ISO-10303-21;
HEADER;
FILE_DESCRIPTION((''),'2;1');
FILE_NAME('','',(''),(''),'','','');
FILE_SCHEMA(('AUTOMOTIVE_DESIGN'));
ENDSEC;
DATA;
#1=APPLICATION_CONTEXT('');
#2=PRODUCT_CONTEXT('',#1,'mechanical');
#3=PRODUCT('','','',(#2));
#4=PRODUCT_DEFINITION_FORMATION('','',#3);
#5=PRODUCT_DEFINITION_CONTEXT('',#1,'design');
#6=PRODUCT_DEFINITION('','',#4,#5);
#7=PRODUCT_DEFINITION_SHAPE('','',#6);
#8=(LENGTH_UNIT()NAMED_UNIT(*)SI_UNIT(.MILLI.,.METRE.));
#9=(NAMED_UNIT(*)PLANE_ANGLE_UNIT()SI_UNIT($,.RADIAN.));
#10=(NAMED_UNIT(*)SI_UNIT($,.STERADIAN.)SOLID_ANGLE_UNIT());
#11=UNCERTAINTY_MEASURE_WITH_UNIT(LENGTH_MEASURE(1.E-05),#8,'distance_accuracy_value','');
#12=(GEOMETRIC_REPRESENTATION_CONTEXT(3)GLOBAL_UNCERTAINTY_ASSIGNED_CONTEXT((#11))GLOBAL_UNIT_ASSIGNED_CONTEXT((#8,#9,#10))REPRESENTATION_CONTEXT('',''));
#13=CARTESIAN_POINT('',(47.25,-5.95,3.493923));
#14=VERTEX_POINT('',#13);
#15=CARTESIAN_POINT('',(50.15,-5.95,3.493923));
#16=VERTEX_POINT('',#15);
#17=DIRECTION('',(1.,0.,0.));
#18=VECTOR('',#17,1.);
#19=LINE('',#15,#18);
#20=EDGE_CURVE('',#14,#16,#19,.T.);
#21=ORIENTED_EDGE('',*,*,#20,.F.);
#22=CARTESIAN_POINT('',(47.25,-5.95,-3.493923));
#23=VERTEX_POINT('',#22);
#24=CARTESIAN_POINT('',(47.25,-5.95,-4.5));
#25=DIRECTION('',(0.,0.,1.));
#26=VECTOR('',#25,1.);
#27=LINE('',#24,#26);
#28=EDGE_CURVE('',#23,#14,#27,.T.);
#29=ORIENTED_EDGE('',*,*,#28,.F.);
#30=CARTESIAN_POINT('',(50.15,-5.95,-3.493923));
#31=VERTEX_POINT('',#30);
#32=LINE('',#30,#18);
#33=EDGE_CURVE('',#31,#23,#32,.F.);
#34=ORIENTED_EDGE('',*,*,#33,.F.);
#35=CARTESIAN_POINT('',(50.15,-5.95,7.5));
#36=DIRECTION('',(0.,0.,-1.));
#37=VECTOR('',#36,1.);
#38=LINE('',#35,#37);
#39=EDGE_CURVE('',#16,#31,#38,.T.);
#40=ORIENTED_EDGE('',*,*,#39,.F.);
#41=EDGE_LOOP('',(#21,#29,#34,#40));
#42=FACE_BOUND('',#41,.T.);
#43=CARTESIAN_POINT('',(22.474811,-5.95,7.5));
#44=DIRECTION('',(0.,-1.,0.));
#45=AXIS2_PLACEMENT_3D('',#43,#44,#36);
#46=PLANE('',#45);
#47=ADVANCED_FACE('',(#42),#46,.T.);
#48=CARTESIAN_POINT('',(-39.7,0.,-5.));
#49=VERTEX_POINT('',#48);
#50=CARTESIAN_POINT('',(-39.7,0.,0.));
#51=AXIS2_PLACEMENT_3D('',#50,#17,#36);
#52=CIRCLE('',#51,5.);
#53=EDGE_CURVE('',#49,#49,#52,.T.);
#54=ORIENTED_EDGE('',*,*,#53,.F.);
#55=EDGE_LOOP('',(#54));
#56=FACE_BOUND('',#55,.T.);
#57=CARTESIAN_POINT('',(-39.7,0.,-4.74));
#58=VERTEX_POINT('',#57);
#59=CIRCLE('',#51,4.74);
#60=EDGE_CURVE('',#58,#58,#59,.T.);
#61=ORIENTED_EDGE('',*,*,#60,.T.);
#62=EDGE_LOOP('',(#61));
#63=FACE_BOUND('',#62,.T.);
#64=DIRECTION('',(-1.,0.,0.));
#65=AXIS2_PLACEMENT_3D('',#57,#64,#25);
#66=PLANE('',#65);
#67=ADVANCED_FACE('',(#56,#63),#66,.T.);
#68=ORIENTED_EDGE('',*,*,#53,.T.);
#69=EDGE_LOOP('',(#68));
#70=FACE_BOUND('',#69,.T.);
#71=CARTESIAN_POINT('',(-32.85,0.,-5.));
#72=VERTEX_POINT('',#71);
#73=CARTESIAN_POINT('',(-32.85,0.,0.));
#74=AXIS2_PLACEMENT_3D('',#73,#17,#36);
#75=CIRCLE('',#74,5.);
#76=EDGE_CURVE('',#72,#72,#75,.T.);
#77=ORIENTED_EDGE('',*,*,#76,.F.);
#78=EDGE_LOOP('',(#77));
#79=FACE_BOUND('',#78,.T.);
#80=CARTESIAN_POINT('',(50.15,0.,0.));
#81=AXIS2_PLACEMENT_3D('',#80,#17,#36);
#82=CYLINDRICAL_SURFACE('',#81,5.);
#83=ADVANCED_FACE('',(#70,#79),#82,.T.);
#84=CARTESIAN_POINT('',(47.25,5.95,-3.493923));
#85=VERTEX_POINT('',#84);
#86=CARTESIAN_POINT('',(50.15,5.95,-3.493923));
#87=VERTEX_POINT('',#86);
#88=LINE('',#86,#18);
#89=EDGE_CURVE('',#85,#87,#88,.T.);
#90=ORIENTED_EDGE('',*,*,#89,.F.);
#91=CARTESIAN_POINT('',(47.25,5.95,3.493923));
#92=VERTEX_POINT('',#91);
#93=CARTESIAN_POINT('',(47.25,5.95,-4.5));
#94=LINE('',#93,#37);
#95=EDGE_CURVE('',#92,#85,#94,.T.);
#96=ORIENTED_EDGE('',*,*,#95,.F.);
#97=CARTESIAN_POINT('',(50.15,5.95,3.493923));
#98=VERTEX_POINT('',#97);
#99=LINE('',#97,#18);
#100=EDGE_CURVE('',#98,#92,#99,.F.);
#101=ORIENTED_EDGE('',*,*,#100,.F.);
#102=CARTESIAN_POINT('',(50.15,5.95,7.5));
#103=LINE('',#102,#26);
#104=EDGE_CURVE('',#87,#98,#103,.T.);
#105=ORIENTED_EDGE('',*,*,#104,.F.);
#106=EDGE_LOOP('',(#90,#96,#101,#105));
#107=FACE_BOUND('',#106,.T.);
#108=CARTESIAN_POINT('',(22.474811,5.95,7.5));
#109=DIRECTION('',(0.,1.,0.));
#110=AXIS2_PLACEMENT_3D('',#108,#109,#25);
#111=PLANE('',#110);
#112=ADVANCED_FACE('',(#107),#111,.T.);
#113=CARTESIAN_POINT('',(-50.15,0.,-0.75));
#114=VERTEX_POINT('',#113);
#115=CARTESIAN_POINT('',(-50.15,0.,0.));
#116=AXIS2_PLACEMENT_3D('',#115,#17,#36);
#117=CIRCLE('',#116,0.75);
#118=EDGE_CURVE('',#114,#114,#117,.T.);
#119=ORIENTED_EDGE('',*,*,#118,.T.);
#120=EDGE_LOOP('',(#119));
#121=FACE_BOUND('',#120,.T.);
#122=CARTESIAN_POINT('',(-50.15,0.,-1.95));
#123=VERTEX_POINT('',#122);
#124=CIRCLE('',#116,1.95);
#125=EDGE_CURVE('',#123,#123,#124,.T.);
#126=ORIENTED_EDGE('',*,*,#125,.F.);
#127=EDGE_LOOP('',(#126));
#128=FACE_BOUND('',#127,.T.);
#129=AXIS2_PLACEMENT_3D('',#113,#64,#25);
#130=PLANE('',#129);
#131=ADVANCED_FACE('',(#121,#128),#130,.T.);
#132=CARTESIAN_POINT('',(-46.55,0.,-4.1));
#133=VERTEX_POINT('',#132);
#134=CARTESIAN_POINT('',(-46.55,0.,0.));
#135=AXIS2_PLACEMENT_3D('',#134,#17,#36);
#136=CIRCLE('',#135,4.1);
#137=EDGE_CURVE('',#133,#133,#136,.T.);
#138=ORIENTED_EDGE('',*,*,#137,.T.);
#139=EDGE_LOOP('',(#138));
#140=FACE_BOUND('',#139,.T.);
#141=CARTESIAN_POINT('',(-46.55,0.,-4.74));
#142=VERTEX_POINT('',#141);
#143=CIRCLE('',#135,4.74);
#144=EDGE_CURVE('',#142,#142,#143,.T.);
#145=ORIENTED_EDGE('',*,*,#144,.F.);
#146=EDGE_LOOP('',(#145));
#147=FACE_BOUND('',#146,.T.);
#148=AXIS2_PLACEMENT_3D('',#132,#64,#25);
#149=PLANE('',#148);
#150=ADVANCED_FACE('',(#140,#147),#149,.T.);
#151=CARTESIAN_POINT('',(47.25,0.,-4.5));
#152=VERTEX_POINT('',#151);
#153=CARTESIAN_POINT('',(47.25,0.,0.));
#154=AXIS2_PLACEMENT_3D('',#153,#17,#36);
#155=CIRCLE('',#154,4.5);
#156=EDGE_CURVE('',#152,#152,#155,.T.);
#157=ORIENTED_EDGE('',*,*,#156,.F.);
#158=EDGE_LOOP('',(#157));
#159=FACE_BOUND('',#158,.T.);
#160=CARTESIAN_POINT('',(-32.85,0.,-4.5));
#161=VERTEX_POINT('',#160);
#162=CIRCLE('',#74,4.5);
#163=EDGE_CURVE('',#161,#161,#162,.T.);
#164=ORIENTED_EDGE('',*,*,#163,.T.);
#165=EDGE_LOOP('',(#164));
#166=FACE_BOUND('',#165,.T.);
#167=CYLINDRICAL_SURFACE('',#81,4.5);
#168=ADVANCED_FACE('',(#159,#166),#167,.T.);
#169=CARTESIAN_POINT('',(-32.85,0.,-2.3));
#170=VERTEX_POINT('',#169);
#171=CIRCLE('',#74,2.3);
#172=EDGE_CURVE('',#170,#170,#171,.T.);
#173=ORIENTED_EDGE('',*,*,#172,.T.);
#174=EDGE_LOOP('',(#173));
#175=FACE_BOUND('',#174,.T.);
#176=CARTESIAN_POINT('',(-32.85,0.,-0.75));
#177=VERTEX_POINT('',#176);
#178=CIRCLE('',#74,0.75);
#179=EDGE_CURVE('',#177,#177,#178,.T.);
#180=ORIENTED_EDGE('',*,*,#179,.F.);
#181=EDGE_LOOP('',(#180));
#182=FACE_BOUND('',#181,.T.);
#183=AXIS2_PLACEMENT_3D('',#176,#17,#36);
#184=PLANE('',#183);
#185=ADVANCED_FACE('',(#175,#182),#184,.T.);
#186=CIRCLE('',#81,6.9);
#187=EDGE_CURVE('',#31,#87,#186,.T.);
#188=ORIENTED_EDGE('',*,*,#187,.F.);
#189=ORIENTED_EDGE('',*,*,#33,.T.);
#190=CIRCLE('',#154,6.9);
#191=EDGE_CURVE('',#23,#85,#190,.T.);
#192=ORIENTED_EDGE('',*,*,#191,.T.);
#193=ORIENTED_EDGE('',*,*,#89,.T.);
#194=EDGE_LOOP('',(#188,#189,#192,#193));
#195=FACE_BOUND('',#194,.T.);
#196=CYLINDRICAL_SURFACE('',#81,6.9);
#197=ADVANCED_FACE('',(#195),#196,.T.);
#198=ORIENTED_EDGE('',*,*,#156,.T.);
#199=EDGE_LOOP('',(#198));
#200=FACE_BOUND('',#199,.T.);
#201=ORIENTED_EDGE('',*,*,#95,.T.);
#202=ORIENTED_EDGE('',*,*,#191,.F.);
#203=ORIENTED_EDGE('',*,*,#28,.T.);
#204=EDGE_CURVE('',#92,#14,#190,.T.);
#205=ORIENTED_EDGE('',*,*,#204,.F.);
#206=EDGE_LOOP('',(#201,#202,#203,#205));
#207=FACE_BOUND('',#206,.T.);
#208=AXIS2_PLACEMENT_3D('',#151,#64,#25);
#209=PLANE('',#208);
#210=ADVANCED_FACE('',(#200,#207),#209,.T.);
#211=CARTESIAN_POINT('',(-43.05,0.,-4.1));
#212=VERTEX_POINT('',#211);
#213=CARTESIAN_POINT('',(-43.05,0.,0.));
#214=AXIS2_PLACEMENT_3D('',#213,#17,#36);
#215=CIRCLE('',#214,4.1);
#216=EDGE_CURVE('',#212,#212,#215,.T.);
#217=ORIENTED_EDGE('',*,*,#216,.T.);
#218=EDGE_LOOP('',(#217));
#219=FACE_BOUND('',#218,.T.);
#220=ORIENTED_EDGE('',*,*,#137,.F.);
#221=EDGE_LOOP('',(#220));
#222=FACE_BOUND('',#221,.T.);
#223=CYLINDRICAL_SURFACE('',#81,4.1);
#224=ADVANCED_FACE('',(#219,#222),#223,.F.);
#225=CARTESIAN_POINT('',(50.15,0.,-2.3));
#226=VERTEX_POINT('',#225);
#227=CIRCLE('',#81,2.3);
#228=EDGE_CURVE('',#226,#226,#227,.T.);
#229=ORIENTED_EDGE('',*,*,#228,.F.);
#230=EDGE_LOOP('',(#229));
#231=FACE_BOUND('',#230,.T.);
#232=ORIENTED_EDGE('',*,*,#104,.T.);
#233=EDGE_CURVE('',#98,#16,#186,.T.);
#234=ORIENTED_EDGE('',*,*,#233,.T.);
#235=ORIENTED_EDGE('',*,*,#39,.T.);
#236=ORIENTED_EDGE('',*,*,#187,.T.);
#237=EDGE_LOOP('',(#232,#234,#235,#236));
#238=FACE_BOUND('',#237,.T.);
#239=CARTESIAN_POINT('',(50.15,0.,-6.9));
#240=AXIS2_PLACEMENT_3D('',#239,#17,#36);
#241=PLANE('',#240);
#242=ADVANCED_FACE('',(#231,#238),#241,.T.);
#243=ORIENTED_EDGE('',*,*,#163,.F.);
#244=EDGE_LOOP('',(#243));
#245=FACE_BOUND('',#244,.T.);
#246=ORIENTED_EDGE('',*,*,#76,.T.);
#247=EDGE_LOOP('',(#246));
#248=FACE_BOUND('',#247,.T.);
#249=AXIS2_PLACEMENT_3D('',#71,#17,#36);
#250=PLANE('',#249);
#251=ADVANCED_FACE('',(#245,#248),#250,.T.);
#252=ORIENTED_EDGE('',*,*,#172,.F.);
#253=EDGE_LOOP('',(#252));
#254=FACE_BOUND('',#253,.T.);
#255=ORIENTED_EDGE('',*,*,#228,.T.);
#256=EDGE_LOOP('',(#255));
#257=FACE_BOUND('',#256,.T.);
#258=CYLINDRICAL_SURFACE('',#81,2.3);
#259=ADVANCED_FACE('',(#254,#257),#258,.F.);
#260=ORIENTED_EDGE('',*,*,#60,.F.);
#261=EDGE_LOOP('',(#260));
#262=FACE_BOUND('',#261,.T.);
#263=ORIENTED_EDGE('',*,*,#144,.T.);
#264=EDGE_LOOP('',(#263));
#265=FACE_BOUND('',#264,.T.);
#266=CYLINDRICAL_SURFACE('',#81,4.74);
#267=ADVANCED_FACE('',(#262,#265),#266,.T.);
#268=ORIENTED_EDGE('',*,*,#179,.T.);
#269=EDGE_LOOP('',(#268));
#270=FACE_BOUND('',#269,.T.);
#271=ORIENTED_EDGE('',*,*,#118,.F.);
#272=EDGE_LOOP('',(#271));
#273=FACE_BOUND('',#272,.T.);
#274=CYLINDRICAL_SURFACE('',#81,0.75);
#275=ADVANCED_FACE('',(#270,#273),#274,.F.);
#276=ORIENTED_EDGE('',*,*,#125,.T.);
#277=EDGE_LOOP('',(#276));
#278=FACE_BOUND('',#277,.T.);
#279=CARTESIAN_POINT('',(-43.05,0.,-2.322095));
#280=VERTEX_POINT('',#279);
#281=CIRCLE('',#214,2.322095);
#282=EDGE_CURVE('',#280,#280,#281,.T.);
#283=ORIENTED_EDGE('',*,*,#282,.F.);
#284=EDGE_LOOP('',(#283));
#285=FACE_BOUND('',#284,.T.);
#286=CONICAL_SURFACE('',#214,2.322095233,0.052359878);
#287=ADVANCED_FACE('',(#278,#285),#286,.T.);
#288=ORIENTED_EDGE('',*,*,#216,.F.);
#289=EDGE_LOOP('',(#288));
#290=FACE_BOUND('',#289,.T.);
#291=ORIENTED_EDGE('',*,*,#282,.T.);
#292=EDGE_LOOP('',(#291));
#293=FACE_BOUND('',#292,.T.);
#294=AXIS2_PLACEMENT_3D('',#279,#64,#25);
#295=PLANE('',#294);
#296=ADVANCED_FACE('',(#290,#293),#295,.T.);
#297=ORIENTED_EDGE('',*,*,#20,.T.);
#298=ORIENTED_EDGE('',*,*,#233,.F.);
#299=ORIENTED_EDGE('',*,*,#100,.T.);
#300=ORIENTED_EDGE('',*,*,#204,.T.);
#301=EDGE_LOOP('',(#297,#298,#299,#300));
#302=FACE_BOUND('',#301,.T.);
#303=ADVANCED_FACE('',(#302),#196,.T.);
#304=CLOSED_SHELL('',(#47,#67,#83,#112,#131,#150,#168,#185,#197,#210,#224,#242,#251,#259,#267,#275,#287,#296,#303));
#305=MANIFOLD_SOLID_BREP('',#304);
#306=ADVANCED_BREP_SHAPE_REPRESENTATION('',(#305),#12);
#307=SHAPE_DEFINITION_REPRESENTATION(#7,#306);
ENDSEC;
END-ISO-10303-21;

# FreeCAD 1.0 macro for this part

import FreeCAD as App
import Part
import Sketcher

V = App.Vector
Q = App.Units.Quantity


def add_polygon(sketch, points):
    """Adds a closed chain of lines whose ends are joined by coincident constraints."""
    first, n = sketch.GeometryCount, len(points)
    for a, b in zip(points, points[1:] + points[:1]):
        sketch.addGeometry(Part.LineSegment(App.Vector(*a, 0), App.Vector(*b, 0)), False)
    for i in range(n):
        sketch.addConstraint(Sketcher.Constraint("Coincident", first + i, 2, first + (i + 1) % n, 1))

doc = App.newDocument("Part")
body = doc.addObject("PartDesign::Body", "Body")

# Sketch on XZ plane
sketch1 = body.newObject("Sketcher::SketchObject", "Sketch")
sketch1.AttachmentSupport = (doc.getObject("XZ_Plane"), [""])
sketch1.MapMode = "FlatFace"
add_polygon(sketch1, [(-50.15, -1.95), (-50.15, -0.75), (-32.85, -0.75), (-32.85, -2.3), (50.15, -2.3), (50.15, -6.9), (47.25, -6.9), (47.25, -4.5), (-32.85, -4.5), (-32.85, -5), (-39.7, -5), (-39.7, -4.74), (-46.55, -4.74), (-46.55, -4.1), (-43.05, -4.1), (-43.05, -2.32)])  # lines 0-15
sketch1.addConstraint([
    Sketcher.Constraint("Vertical", 0),
    Sketcher.Constraint("Horizontal", 1),
    Sketcher.Constraint("Vertical", 2),
    Sketcher.Constraint("Horizontal", 3),
    Sketcher.Constraint("Vertical", 4),
    Sketcher.Constraint("Horizontal", 5),
    Sketcher.Constraint("Vertical", 6),
    Sketcher.Constraint("Horizontal", 7),
    Sketcher.Constraint("Vertical", 8),
    Sketcher.Constraint("Horizontal", 9),
    Sketcher.Constraint("Vertical", 10),
    Sketcher.Constraint("Horizontal", 11),
    Sketcher.Constraint("Vertical", 12),
    Sketcher.Constraint("Horizontal", 13),
    Sketcher.Constraint("Vertical", 14),
    Sketcher.Constraint("Vertical", 2, 2, 7, 2),
    Sketcher.Constraint("Equal", 9, 11),
    Sketcher.Constraint("DistanceX", 3, 1, 3, 2, Q("83 mm")),
    Sketcher.Constraint("Angle", 15, Q("177 deg")),
    Sketcher.Constraint("DistanceX", 1, 1, 1, 2, Q("17.3 mm")),
    Sketcher.Constraint("DistanceX", 5, 2, 5, 1, Q("2.9 mm")),
    Sketcher.Constraint("DistanceX", 13, 1, 13, 2, Q("3.5 mm")),
    Sketcher.Constraint("DistanceY", 0, 1, 0, 2, Q("1.2 mm")),
    Sketcher.Constraint("DistanceY", 4, 2, 4, 1, Q("4.6 mm")),
    Sketcher.Constraint("DistanceY", 6, 1, 6, 2, Q("2.4 mm")),
    Sketcher.Constraint("DistanceY", 8, 2, 8, 1, Q("0.5 mm")),
    Sketcher.Constraint("DistanceY", 8, 2, -1, 1, Q("5 mm")),
    Sketcher.Constraint("DistanceX", 9, 2, 9, 1, Q("6.85 mm")),
    Sketcher.Constraint("DistanceY", 2, 2, 2, 1, Q("1.55 mm")),
    Sketcher.Constraint("DistanceY", 10, 1, 10, 2, Q("0.26 mm")),
    Sketcher.Constraint("DistanceY", 12, 1, 12, 2, Q("0.64 mm")),
    Sketcher.Constraint("DistanceX", 9, 2, -1, 1, Q("39.7 mm")),
])
revolution = body.newObject("PartDesign::Revolution", "Revolution")
revolution.Profile = sketch1
revolution.ReferenceAxis = (sketch1, ["H_Axis"])
revolution.Angle = 360

# Sketch on YZ plane
sketch2 = body.newObject("Sketcher::SketchObject", "Sketch001")
sketch2.AttachmentSupport = (doc.getObject("YZ_Plane"), [""])
sketch2.MapMode = "FlatFace"
sketch2.AttachmentOffset = App.Placement(V(0, 0, 50.15), App.Rotation())
add_polygon(sketch2, [(8, 10), (-8, 10), (-8, -10), (8, -10)])  # lines 0-3
add_polygon(sketch2, [(-6, -8), (-6, 8), (6, 8), (6, -8)])  # lines 4-7
sketch2.addConstraint([
    Sketcher.Constraint("Horizontal", 0),
    Sketcher.Constraint("Vertical", 1),
    Sketcher.Constraint("Horizontal", 2),
    Sketcher.Constraint("Vertical", 3),
    Sketcher.Constraint("Vertical", 4),
    Sketcher.Constraint("Horizontal", 5),
    Sketcher.Constraint("Vertical", 6),
    Sketcher.Constraint("Horizontal", 7),
    Sketcher.Constraint("Symmetric", 0, 2, 2, 2, -1, 1),
    Sketcher.Constraint("Symmetric", 4, 2, 6, 2, -1, 1),
    Sketcher.Constraint("DistanceY", 1, 2, 1, 1, Q("19 mm")),
    Sketcher.Constraint("DistanceY", 4, 1, 4, 2, Q("15 mm")),
    Sketcher.Constraint("DistanceX", 0, 2, 0, 1, Q("15.9 mm")),
    Sketcher.Constraint("DistanceX", 5, 1, 5, 2, Q("11.9 mm")),
])
pocket1 = body.newObject("PartDesign::Pocket", "Pocket")
pocket1.Profile = sketch2
pocket1.Length = 2.9

doc.recompute()
